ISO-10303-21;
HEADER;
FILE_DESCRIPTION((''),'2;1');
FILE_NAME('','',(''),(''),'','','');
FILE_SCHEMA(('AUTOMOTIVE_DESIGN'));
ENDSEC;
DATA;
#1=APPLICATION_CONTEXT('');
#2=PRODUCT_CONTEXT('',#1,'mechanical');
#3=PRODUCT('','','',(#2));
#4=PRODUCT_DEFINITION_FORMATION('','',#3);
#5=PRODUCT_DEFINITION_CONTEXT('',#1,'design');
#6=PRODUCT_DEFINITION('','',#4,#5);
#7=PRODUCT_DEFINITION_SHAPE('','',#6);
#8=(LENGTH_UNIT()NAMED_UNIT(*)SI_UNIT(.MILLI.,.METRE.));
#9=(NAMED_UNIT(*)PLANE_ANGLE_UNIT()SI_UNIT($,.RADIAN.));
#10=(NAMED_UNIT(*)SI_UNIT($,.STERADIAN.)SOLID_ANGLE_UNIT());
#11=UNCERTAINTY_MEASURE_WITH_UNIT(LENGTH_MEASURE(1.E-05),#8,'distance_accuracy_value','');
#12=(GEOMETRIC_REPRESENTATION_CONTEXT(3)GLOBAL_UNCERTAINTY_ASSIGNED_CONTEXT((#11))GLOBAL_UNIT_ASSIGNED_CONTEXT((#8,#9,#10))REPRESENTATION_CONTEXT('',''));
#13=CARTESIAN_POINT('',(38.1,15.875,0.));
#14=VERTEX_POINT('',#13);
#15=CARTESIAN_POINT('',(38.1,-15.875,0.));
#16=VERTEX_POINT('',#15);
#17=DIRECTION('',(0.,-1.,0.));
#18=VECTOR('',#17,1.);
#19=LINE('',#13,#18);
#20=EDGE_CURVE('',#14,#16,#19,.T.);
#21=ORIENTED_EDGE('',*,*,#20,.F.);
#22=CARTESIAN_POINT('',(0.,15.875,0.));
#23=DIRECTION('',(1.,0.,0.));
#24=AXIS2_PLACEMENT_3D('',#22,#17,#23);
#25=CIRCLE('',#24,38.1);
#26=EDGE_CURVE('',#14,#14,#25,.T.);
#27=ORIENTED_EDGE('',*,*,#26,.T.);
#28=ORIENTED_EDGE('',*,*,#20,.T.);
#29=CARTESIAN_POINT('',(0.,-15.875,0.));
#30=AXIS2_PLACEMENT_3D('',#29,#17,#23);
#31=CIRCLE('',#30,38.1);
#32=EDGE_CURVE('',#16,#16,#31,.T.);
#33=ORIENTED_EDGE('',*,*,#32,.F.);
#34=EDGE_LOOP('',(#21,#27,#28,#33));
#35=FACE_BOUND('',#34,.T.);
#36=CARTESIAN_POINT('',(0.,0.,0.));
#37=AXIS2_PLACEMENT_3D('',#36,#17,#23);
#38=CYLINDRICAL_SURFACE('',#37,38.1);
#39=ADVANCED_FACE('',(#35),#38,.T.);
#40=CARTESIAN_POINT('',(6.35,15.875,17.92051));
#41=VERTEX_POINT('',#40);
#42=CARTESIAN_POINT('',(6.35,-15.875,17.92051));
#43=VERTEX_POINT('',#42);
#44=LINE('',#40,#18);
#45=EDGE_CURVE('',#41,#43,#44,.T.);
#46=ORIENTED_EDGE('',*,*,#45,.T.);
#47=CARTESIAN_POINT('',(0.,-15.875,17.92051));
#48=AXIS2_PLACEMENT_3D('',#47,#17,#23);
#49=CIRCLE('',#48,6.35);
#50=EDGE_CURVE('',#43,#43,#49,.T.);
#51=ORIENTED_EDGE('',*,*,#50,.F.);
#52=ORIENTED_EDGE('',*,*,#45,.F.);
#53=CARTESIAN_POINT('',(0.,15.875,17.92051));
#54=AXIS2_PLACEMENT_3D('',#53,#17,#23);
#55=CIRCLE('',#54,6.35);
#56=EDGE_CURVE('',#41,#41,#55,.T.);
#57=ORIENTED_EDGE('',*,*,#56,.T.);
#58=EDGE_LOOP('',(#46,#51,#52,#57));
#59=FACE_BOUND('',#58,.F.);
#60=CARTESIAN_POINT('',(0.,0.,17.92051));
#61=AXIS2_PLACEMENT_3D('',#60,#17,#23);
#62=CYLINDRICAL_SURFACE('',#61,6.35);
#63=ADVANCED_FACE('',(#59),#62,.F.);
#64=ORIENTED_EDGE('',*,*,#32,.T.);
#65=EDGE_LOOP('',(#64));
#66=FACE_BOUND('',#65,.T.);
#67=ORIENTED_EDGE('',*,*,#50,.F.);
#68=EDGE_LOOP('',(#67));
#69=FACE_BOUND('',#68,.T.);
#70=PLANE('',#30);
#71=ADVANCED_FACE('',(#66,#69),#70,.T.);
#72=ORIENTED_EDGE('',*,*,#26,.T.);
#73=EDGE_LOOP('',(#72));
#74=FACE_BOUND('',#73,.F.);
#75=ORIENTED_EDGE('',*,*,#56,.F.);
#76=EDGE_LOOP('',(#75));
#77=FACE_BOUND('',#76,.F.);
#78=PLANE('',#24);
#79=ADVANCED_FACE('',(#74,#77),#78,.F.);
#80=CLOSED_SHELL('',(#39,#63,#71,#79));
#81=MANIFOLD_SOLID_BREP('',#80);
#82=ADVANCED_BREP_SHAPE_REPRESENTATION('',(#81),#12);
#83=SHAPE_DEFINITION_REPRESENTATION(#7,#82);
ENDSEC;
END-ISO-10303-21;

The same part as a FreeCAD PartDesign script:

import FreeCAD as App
import Part
import Sketcher

V = App.Vector
Q = App.Units.Quantity

doc = App.newDocument("Part")
body = doc.addObject("PartDesign::Body", "Body")

sketch1 = body.newObject("Sketcher::SketchObject", "Sketch")
sketch1.AttachmentSupport = (doc.getObject("XZ_Plane"), [""])
sketch1.MapMode = "FlatFace"
sketch1.addGeometry(Part.Circle(V(0, 0, 0), V(0, 0, 1), 38.1), False)
sketch1.addConstraint(Sketcher.Constraint("Coincident", 0, 3, -1, 1))
sketch1.addConstraint(Sketcher.Constraint("Diameter", 0, Q("3 in")))
pad1 = body.newObject("PartDesign::Pad", "Pad")
pad1.Profile = sketch1
pad1.Length = Q("1.25 in")
pad1.Midplane = True

sketch2 = body.newObject("Sketcher::SketchObject", "Sketch001")
sketch2.AttachmentSupport = (doc.getObject("XZ_Plane"), [""])
sketch2.MapMode = "FlatFace"
sketch2.addGeometry(Part.Circle(V(0, 17.92051, 0), V(0, 0, 1), 6.35), False)
sketch2.addConstraint(Sketcher.Constraint("PointOnObject", 0, 3, -2))
sketch2.addConstraint(Sketcher.Constraint("Diameter", 0, Q("0.5 in")))
sketch2.addConstraint(Sketcher.Constraint("DistanceY", -1, 1, 0, 3, Q("17.92051 mm")))
pocket1 = body.newObject("PartDesign::Pocket", "Pocket")
pocket1.Profile = sketch2
pocket1.Length = Q("1.25 in")
pocket1.Midplane = True

doc.recompute()
